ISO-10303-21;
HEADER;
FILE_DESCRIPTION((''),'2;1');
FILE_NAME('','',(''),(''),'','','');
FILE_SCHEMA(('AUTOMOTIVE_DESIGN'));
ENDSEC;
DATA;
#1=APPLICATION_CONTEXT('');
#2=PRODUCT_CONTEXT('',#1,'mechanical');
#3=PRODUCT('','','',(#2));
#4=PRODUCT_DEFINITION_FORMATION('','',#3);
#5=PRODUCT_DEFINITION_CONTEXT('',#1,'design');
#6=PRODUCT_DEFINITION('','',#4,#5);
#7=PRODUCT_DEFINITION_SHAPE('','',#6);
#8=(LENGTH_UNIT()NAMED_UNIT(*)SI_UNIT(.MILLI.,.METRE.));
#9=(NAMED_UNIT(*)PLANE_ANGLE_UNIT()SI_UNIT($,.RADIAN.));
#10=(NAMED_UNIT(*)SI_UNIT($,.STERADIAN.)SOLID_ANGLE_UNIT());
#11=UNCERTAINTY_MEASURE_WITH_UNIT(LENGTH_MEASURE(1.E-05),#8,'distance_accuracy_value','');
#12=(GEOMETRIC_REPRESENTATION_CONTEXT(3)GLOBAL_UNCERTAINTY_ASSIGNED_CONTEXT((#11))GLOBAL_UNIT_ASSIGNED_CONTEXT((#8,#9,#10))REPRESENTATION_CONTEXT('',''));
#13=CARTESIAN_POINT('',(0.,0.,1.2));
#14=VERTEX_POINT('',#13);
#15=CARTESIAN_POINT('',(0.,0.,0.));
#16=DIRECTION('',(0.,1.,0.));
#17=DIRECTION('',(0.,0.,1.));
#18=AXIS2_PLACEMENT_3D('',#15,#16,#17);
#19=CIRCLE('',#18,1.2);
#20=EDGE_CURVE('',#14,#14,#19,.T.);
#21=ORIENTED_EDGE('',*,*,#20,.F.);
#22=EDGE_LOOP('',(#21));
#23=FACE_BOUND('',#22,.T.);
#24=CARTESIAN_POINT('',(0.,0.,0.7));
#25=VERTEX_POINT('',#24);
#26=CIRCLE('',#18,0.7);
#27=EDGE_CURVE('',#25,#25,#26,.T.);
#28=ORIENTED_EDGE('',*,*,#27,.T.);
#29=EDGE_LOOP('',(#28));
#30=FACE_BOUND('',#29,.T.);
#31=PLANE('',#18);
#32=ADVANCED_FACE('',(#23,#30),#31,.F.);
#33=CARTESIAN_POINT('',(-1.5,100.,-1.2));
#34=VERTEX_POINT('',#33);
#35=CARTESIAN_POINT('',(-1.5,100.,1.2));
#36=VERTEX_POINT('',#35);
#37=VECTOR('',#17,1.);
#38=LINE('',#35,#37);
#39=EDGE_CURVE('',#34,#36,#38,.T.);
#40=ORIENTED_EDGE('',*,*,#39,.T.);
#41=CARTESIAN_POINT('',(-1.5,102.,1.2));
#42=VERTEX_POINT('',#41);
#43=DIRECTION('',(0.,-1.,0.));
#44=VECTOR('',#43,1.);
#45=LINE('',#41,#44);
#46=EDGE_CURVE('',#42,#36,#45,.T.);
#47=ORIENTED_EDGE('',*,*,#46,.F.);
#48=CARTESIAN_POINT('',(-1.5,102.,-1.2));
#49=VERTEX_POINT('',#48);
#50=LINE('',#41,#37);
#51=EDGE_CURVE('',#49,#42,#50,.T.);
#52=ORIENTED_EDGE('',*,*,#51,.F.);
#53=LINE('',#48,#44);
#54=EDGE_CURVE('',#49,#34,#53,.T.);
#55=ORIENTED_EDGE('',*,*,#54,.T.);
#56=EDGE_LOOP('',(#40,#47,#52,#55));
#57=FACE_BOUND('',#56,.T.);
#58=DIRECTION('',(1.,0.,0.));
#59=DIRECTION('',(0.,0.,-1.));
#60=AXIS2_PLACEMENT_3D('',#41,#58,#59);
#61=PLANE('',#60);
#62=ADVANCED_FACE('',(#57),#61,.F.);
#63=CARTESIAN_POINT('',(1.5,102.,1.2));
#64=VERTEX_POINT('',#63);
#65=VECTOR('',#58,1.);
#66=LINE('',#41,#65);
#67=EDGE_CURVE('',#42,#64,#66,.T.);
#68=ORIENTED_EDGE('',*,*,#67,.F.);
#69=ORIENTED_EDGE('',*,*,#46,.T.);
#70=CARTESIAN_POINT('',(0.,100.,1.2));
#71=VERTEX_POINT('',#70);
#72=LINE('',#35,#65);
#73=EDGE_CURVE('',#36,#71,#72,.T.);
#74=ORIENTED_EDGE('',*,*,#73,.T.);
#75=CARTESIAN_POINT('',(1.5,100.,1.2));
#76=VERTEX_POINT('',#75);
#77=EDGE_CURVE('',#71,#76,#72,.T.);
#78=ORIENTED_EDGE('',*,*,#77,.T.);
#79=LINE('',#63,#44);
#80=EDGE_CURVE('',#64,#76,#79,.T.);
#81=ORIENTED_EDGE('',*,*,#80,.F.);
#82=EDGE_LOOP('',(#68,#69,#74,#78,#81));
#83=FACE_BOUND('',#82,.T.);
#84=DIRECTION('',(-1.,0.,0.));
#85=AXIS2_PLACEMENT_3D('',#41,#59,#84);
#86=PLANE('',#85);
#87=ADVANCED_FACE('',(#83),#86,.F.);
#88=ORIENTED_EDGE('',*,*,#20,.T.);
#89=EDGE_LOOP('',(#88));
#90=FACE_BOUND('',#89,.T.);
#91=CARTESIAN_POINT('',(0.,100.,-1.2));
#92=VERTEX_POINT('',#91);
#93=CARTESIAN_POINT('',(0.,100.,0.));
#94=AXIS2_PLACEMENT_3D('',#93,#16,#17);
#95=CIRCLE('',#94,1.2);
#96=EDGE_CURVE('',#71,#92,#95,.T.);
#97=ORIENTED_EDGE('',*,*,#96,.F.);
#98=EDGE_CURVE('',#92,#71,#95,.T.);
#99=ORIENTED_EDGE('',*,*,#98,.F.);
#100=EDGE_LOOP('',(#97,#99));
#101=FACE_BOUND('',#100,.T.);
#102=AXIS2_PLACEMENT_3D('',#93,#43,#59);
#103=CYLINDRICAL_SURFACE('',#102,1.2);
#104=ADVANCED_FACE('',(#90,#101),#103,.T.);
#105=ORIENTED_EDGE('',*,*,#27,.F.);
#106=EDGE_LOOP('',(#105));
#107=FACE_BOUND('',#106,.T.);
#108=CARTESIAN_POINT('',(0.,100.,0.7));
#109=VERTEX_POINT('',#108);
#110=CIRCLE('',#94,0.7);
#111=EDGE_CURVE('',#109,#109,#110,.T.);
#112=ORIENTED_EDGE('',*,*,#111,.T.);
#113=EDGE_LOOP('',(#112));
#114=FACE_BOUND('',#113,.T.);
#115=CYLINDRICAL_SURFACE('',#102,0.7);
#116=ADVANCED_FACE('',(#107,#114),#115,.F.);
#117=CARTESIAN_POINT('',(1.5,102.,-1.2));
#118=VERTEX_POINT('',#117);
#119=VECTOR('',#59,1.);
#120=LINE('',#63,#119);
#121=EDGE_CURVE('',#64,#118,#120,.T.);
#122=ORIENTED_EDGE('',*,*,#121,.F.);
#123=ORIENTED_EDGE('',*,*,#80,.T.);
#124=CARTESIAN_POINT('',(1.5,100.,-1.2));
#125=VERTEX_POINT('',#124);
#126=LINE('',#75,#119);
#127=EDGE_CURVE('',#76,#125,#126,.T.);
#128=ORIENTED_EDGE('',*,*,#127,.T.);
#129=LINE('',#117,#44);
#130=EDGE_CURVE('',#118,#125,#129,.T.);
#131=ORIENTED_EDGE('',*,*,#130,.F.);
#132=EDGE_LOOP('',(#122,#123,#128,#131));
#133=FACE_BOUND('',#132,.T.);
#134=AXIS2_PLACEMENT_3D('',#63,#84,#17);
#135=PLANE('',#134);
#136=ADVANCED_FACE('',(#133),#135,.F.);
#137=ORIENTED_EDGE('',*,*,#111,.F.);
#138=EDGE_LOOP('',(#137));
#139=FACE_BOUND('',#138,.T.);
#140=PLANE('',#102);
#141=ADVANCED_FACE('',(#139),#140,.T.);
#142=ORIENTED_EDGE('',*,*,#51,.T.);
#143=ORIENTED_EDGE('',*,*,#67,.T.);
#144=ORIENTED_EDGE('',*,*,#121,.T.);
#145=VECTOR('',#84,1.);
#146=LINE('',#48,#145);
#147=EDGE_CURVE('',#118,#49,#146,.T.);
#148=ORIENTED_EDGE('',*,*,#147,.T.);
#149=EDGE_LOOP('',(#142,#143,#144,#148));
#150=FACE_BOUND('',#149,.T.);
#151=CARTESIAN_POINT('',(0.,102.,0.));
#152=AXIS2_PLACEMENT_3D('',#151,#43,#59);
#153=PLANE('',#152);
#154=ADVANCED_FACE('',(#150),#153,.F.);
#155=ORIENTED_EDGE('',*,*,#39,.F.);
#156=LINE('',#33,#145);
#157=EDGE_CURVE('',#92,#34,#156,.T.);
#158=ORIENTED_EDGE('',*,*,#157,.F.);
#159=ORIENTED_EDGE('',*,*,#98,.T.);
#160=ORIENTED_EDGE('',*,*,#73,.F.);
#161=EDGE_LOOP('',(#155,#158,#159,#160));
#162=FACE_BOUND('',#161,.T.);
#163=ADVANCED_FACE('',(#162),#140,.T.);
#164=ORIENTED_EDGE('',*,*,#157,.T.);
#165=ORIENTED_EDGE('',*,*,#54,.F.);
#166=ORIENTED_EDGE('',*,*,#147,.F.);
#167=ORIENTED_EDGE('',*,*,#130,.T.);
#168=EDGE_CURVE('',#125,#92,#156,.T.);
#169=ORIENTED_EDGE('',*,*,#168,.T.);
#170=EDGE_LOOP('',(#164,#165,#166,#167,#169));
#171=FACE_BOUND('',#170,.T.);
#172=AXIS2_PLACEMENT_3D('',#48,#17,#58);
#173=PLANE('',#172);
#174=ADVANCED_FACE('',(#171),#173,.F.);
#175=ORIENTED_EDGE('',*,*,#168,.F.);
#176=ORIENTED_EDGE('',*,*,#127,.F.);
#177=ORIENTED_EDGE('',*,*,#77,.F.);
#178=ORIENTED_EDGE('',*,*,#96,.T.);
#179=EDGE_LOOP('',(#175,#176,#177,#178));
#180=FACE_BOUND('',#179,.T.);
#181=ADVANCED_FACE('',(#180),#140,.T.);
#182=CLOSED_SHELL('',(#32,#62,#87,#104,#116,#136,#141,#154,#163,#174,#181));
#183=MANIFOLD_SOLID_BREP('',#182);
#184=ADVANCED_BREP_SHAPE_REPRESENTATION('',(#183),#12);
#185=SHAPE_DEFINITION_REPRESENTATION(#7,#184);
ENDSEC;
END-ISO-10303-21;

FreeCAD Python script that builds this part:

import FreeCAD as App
import Part
import Sketcher

V = App.Vector
Q = App.Units.Quantity

doc = App.newDocument("Part")
body = doc.addObject("PartDesign::Body", "Body")

# Sketch on XZ plane
sketch1 = body.newObject("Sketcher::SketchObject", "Sketch")
sketch1.AttachmentSupport = (doc.getObject("XZ_Plane"), [""])
sketch1.MapMode = "FlatFace"
sketch1.addGeometry(Part.Circle(V(0, 0, 0), V(0, 0, 1), 1.2), False)
sketch1.addGeometry(Part.Circle(V(0, 0, 0), V(0, 0, 1), 0.7), False)
sketch1.addConstraint(Sketcher.Constraint("Coincident", 0, 3, -1, 1))
sketch1.addConstraint(Sketcher.Constraint("Coincident", 1, 3, -1, 1))
sketch1.addConstraint(Sketcher.Constraint("Diameter", 0, Q("2.4 mm")))
sketch1.addConstraint(Sketcher.Constraint("Diameter", 1, Q("1.4 mm")))
pad1 = body.newObject("PartDesign::Pad", "Pad")
pad1.Profile = sketch1
pad1.Length = 100
pad1.Reversed = True

# Sketch on XZ plane
sketch2 = body.newObject("Sketcher::SketchObject", "Sketch001")
sketch2.AttachmentSupport = (doc.getObject("XZ_Plane"), [""])
sketch2.MapMode = "FlatFace"
sketch2.AttachmentOffset = App.Placement(V(0, 0, -100), App.Rotation())
sketch2.addGeometry(Part.LineSegment(V(-1.5, -1.2, 0), V(-1.5, 1.2, 0)), False)
sketch2.addGeometry(Part.LineSegment(V(-1.5, 1.2, 0), V(1.5, 1.2, 0)), False)
sketch2.addGeometry(Part.LineSegment(V(1.5, 1.2, 0), V(1.5, -1.2, 0)), False)
sketch2.addGeometry(Part.LineSegment(V(1.5, -1.2, 0), V(-1.5, -1.2, 0)), False)
sketch2.addConstraint(Sketcher.Constraint("Coincident", 0, 2, 1, 1))
sketch2.addConstraint(Sketcher.Constraint("Coincident", 1, 2, 2, 1))
sketch2.addConstraint(Sketcher.Constraint("Coincident", 2, 2, 3, 1))
sketch2.addConstraint(Sketcher.Constraint("Coincident", 3, 2, 0, 1))
sketch2.addConstraint(Sketcher.Constraint("Vertical", 0))
sketch2.addConstraint(Sketcher.Constraint("Horizontal", 1))
sketch2.addConstraint(Sketcher.Constraint("Vertical", 2))
sketch2.addConstraint(Sketcher.Constraint("Horizontal", 3))
sketch2.addConstraint(Sketcher.Constraint("Symmetric", 0, 2, 2, 2, -1, 1))
sketch2.addConstraint(Sketcher.Constraint("DistanceX", 1, 1, 1, 2, Q("3 mm")))
sketch2.addConstraint(Sketcher.Constraint("DistanceY", 0, 1, 0, 2, Q("2.4 mm")))
pad2 = body.newObject("PartDesign::Pad", "Pad001")
pad2.Profile = sketch2
pad2.Length = 2
pad2.Reversed = True

doc.recompute()
